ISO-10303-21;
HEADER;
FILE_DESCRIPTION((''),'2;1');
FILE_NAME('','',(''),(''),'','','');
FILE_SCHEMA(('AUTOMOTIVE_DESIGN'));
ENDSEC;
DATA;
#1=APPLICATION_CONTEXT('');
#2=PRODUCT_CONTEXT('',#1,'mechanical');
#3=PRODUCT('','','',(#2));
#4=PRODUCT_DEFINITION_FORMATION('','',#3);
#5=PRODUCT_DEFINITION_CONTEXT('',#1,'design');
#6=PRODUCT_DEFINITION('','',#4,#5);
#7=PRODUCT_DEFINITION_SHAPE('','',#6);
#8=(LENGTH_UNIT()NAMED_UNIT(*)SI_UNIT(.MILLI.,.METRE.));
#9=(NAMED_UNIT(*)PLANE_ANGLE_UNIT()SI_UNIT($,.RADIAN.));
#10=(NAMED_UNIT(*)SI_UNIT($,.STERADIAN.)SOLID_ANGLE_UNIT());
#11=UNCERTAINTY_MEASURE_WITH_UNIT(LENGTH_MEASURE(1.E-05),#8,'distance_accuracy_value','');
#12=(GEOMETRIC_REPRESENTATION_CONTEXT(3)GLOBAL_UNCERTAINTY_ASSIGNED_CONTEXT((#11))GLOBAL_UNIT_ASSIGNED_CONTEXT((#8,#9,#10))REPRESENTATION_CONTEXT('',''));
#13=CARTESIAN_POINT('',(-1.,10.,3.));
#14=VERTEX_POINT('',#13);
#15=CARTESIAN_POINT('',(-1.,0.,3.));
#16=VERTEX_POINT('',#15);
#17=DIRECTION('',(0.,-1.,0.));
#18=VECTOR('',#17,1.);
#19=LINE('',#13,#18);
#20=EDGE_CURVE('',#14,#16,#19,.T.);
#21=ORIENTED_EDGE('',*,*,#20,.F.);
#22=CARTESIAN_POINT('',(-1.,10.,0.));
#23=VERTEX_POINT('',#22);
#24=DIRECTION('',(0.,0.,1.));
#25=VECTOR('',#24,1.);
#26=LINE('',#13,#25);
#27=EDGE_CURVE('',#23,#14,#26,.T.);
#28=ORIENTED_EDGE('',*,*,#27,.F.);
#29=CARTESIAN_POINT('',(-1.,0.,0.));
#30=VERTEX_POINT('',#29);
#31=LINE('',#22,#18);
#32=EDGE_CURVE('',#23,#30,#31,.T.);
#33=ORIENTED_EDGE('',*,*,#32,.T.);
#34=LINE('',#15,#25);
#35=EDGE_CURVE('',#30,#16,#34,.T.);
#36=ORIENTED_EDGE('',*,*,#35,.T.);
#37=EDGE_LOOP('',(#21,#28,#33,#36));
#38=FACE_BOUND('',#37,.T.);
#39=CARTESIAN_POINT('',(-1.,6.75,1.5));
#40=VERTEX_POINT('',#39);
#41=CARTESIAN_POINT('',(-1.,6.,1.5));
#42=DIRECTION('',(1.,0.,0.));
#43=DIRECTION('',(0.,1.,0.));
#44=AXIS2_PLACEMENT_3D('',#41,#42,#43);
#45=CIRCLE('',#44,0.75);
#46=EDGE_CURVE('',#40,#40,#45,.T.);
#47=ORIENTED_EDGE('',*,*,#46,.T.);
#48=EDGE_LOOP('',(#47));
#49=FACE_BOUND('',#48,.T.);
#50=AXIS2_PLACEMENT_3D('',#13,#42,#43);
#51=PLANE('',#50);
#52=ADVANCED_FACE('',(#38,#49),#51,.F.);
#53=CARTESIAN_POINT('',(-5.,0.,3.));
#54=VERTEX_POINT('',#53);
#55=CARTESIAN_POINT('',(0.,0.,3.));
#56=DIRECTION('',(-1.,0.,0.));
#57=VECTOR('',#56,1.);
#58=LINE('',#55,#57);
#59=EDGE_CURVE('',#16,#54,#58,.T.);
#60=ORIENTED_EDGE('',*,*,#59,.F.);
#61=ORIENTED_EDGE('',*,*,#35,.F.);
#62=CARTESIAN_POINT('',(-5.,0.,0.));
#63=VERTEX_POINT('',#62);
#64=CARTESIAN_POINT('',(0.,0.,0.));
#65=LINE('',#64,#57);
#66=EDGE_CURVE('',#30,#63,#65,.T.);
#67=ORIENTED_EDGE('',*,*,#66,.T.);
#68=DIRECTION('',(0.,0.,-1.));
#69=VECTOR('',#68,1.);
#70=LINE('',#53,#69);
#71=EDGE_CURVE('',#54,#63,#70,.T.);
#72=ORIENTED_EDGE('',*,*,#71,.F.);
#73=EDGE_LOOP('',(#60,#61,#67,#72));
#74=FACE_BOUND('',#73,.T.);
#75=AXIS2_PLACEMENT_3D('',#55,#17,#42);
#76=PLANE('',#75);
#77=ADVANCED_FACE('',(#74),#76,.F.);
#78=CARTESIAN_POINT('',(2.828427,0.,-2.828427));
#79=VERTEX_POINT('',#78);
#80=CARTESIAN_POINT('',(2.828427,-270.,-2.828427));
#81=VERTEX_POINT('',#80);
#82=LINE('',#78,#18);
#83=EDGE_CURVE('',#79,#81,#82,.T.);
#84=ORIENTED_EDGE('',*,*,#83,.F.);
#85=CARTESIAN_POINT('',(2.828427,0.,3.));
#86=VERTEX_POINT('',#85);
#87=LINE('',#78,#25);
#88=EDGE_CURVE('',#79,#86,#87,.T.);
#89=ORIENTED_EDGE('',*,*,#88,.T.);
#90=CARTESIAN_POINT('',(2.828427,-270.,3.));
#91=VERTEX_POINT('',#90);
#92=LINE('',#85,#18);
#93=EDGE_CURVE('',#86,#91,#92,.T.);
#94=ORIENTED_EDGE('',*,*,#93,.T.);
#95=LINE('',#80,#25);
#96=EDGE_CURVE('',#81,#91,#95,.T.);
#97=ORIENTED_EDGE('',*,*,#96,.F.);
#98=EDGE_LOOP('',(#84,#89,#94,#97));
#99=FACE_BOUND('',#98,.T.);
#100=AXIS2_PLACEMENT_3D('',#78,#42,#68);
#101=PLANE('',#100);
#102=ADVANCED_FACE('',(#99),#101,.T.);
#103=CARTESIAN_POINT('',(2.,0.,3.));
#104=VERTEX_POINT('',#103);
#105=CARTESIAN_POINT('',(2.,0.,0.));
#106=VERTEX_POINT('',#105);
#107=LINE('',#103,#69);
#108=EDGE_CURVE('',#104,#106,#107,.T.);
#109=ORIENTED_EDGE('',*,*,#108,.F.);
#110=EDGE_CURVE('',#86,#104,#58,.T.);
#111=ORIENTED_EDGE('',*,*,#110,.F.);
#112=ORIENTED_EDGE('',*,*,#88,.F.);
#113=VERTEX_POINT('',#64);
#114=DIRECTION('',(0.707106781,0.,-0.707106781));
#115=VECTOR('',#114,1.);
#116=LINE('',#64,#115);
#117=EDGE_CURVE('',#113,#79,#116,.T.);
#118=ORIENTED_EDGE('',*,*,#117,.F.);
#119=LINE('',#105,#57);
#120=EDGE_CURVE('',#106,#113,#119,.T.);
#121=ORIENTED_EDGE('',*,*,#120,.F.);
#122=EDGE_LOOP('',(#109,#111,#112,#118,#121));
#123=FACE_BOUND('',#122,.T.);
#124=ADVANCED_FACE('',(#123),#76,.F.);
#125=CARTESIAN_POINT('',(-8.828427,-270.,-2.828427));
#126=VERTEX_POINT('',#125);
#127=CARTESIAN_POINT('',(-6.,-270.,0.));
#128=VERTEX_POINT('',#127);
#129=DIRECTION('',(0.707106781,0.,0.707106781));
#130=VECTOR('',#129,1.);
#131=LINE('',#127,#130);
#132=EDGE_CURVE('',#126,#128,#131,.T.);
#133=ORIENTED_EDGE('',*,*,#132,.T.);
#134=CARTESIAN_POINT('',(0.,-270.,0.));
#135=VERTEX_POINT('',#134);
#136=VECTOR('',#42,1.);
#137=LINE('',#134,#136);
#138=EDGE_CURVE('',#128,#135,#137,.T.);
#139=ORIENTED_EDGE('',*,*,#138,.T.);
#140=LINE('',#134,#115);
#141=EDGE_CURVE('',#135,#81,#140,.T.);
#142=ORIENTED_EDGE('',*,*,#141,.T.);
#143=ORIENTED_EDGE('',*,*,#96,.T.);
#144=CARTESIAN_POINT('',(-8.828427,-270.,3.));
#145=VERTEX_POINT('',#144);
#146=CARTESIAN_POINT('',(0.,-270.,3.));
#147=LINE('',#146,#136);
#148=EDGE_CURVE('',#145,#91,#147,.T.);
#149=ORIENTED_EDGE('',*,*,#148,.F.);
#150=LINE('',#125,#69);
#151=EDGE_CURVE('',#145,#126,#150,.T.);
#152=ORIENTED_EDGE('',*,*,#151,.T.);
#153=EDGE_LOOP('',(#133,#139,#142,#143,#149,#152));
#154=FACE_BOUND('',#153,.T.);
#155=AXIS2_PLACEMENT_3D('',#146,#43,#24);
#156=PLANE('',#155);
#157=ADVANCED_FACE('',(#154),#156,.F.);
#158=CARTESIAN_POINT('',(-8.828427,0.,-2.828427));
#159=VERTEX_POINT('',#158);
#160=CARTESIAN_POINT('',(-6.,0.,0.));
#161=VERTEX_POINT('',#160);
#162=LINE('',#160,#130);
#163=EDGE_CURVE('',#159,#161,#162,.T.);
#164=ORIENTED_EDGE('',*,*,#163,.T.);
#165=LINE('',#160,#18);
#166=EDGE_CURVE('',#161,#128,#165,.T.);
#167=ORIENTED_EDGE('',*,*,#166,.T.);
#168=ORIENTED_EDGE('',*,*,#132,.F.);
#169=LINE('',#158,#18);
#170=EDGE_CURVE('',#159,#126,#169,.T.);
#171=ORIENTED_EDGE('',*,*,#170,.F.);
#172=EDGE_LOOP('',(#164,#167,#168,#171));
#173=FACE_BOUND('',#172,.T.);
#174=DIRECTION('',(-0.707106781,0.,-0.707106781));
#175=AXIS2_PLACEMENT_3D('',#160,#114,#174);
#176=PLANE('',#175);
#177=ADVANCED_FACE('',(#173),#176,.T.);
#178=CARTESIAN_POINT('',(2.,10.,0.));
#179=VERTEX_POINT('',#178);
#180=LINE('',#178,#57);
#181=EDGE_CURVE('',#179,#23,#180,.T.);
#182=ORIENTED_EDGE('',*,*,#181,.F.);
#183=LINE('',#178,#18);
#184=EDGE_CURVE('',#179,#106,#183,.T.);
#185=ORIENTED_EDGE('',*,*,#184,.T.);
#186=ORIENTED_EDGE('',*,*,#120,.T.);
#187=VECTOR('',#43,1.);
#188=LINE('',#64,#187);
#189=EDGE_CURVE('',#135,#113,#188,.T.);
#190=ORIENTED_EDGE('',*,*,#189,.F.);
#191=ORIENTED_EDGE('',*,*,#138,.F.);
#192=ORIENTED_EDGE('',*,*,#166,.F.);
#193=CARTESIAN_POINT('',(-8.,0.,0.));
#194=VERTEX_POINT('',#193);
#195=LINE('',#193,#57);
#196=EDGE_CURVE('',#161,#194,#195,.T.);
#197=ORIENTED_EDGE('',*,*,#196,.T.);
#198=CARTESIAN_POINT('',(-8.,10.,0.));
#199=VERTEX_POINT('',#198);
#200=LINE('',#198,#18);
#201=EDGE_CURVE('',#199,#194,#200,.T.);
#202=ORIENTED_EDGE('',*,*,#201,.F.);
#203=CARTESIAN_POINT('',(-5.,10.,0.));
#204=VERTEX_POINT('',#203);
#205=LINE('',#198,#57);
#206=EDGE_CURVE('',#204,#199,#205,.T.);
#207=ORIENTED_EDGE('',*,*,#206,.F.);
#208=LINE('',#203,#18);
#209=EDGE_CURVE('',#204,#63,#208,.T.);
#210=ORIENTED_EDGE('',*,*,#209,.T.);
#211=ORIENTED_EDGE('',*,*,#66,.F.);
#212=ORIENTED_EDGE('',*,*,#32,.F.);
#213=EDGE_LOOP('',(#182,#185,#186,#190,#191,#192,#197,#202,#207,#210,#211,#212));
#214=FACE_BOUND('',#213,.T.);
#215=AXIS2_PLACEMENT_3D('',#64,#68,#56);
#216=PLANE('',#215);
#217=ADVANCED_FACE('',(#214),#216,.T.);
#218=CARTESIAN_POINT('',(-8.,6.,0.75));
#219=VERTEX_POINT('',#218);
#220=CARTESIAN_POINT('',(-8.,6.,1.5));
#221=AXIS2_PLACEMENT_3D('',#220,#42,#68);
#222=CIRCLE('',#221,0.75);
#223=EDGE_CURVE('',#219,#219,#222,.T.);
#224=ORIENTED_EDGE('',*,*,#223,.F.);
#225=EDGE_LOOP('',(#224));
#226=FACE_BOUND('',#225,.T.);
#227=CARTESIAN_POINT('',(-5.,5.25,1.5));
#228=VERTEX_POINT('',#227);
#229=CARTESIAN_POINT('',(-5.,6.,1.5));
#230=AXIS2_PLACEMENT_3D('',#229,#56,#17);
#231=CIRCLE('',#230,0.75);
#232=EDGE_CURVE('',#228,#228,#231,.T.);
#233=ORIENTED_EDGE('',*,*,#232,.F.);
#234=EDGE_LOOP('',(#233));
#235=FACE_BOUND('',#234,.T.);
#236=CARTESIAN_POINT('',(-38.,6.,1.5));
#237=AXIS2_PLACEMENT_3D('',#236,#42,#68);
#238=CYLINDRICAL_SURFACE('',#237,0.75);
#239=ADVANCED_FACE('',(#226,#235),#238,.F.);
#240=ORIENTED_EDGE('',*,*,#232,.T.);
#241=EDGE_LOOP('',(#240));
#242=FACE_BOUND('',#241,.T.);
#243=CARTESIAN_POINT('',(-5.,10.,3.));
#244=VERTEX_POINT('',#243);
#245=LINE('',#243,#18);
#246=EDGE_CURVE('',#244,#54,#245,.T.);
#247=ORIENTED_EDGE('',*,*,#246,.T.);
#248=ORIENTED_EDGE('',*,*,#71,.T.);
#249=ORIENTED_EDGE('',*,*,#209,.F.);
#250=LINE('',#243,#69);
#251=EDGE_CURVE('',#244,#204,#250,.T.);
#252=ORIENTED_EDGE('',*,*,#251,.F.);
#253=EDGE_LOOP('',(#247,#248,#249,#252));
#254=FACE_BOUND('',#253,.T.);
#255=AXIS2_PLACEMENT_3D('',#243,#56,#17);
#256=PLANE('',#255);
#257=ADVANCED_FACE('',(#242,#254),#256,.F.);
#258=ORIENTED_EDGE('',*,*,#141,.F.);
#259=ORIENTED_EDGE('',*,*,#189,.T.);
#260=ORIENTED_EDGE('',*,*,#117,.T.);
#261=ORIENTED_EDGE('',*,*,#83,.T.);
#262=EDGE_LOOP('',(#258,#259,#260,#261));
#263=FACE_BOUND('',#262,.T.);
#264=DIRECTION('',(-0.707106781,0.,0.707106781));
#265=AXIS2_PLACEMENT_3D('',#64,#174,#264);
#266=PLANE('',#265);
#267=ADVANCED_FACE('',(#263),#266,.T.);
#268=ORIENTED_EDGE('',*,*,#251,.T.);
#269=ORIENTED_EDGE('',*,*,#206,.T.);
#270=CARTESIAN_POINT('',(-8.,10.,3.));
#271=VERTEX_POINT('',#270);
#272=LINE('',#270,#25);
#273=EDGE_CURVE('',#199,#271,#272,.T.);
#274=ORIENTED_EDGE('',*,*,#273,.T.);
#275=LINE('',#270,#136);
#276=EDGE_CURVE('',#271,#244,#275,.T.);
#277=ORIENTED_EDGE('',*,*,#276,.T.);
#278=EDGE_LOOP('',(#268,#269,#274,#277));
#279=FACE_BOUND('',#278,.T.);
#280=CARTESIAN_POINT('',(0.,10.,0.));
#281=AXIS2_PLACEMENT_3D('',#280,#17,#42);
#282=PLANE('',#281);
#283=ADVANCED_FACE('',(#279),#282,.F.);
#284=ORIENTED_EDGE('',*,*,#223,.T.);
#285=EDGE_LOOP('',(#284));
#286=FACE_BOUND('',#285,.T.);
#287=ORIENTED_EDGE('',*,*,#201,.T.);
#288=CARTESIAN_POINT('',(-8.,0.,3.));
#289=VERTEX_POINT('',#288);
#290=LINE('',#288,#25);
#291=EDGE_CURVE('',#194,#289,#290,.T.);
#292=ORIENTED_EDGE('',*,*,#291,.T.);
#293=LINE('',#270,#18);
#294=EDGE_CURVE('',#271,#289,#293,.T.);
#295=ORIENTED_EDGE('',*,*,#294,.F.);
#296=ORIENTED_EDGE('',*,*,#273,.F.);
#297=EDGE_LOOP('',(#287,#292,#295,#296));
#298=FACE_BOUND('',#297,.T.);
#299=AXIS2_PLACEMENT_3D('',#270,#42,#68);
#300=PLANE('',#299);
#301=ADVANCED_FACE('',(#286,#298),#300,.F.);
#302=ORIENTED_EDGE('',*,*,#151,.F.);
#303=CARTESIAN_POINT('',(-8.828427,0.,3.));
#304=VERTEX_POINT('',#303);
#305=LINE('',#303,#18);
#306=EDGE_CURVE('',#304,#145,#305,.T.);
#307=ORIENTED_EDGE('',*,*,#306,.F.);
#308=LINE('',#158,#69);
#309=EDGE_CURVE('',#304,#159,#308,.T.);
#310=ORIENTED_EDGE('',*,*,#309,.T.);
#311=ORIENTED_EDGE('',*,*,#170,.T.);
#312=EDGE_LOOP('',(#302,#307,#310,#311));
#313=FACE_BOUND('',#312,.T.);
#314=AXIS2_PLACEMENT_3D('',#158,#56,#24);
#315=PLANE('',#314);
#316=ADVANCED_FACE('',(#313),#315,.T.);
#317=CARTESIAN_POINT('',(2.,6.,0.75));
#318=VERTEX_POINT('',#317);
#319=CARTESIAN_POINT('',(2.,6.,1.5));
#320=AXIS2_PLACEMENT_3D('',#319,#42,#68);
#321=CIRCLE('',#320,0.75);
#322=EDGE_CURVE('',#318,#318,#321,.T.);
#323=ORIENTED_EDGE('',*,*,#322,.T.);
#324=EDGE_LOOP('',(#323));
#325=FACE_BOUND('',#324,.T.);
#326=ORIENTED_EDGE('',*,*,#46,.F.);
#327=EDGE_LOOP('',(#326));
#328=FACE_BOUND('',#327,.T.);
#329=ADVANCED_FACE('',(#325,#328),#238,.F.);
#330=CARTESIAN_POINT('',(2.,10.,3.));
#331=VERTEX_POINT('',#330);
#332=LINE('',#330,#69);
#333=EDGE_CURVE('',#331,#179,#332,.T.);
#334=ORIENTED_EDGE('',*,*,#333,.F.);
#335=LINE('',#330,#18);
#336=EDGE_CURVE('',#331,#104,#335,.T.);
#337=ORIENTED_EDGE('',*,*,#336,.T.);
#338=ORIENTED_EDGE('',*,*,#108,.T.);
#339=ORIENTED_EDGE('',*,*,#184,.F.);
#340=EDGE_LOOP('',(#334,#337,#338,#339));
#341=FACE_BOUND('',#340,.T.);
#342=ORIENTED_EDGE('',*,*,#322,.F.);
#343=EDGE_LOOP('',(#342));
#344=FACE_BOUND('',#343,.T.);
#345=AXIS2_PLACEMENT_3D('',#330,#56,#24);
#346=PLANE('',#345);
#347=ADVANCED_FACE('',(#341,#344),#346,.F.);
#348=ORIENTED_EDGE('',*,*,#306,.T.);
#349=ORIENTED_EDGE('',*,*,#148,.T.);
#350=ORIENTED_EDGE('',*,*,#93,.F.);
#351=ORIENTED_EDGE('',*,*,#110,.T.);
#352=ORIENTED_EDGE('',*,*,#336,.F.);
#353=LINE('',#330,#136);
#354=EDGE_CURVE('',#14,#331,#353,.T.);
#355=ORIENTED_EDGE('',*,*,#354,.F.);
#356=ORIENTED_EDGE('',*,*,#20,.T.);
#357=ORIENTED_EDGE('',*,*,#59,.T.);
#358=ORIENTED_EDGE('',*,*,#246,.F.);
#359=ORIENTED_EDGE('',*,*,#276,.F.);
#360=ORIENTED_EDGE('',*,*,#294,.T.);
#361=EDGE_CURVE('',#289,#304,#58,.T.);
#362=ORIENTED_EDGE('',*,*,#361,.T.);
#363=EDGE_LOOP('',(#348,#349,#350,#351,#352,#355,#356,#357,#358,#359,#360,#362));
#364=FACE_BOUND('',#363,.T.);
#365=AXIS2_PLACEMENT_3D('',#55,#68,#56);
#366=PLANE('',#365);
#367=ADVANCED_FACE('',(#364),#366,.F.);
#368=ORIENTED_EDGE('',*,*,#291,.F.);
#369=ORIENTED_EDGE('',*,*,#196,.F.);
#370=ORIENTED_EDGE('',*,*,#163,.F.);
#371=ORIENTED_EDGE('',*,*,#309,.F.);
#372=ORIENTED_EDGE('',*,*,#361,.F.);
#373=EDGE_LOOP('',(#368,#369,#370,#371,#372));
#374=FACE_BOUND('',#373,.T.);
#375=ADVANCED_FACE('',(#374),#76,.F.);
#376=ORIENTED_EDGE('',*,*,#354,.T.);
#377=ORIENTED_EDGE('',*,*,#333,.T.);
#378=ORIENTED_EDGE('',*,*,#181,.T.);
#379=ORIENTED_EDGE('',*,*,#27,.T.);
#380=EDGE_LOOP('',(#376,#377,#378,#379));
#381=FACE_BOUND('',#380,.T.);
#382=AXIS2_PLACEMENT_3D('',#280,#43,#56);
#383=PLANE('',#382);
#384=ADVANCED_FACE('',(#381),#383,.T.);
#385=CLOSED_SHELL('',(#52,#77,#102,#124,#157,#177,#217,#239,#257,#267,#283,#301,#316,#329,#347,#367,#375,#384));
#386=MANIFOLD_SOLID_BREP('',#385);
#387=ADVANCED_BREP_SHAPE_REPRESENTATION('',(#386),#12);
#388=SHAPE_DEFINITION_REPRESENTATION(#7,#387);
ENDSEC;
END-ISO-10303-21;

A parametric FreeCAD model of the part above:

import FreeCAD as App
import Part
import Sketcher
from FreeCAD import Vector


def add_polygon(sketch, points):
    """Adds a closed chain of lines whose ends are joined by coincident constraints."""
    first, n = sketch.GeometryCount, len(points)
    for a, b in zip(points, points[1:] + points[:1]):
        sketch.addGeometry(Part.LineSegment(App.Vector(*a, 0), App.Vector(*b, 0)), False)
    for i in range(n):
        sketch.addConstraint(Sketcher.Constraint("Coincident", first + i, 2, first + (i + 1) % n, 1))

doc = App.newDocument("Part")
body = doc.addObject("PartDesign::Body", "Body")

# Sketch on XY plane
sketch1 = body.newObject("Sketcher::SketchObject", "Sketch")
sketch1.AttachmentSupport = (doc.getObject("XY_Plane"), [""])
sketch1.MapMode = "FlatFace"
add_polygon(sketch1, [(-6, 0), (-6, -270), (0, -270), (0, 0)])  # lines 0-3
sketch1.addConstraint(Sketcher.Constraint("Vertical", 0))
sketch1.addConstraint(Sketcher.Constraint("Horizontal", 1))
sketch1.addConstraint(Sketcher.Constraint("Vertical", 2))
sketch1.addConstraint(Sketcher.Constraint("Horizontal", 3))
sketch1.addConstraint(Sketcher.Constraint("Coincident", 2, 2, -1, 1))
sketch1.addConstraint(Sketcher.Constraint("DistanceX", 1, 1, 1, 2, 6.0))
sketch1.addConstraint(Sketcher.Constraint("DistanceY", 0, 2, 0, 1, 270.0))
pad1 = body.newObject("PartDesign::Pad", "Pad")
pad1.Profile = sketch1
pad1.Length = 3

# Sketch on XZ plane
sketch2 = body.newObject("Sketcher::SketchObject", "Sketch001")
sketch2.AttachmentSupport = (doc.getObject("XZ_Plane"), [""])
sketch2.MapMode = "FlatFace"
sketch2.AttachmentOffset = App.Placement(Vector(0, 0, 270), App.Rotation())
add_polygon(sketch2, [(0, 0), (2.8, -2.8), (2.8, 3), (0, 3)])  # lines 0-3
add_polygon(sketch2, [(-6, 3), (-8.8, 3), (-8.8, -2.8), (-6, 0)])  # lines 4-7
sketch2.addConstraint(Sketcher.Constraint("Vertical", 1))
sketch2.addConstraint(Sketcher.Constraint("Horizontal", 2))
sketch2.addConstraint(Sketcher.Constraint("Vertical", 3))
sketch2.addConstraint(Sketcher.Constraint("Horizontal", 4))
sketch2.addConstraint(Sketcher.Constraint("Vertical", 5))
sketch2.addConstraint(Sketcher.Constraint("Vertical", 7))
sketch2.addConstraint(Sketcher.Constraint("Coincident", 3, 2, -1, 1))
sketch2.addConstraint(Sketcher.Constraint("PointOnObject", 6, 2, -1))
sketch2.addConstraint(Sketcher.Constraint("Perpendicular", 0, 6))
sketch2.addConstraint(Sketcher.Constraint("Horizontal", 2, 2, 4, 2))
sketch2.addConstraint(Sketcher.Constraint("Horizontal", 0, 2, 5, 2))
sketch2.addConstraint(Sketcher.Constraint("Equal", 2, 4))
sketch2.addConstraint(Sketcher.Constraint("DistanceY", 3, 2, 3, 1, 3.0))
sketch2.addConstraint(Sketcher.Constraint("Distance", 0, 4.0))
sketch2.addConstraint(Sketcher.Constraint("DistanceX", 6, 2, -1, 1, 6.0))
pad2 = body.newObject("PartDesign::Pad", "Pad001")
pad2.Profile = sketch2
pad2.Length = 270
pad2.Reversed = True

# Sketch on XZ plane
sketch3 = body.newObject("Sketcher::SketchObject", "Sketch002")
sketch3.AttachmentSupport = (doc.getObject("XZ_Plane"), [""])
sketch3.MapMode = "FlatFace"
add_polygon(sketch3, [(-8, 0), (-8, 3), (-5, 3), (-5, 0)])  # lines 0-3
add_polygon(sketch3, [(-1, 0), (-1, 3), (2, 3), (2, 0)])  # lines 4-7
sketch3.addConstraint(Sketcher.Constraint("Vertical", 0))
sketch3.addConstraint(Sketcher.Constraint("Horizontal", 1))
sketch3.addConstraint(Sketcher.Constraint("Vertical", 2))
sketch3.addConstraint(Sketcher.Constraint("Horizontal", 3))
sketch3.addConstraint(Sketcher.Constraint("Vertical", 4))
sketch3.addConstraint(Sketcher.Constraint("Horizontal", 5))
sketch3.addConstraint(Sketcher.Constraint("Vertical", 6))
sketch3.addConstraint(Sketcher.Constraint("Horizontal", 7))
sketch3.addConstraint(Sketcher.Constraint("PointOnObject", 2, 2, -1))
sketch3.addConstraint(Sketcher.Constraint("PointOnObject", 6, 2, -1))
sketch3.addConstraint(Sketcher.Constraint("Horizontal", 1, 2, 4, 2))
sketch3.addConstraint(Sketcher.Constraint("Equal", 3, 5))
sketch3.addConstraint(Sketcher.Constraint("Equal", 7, 0))
sketch3.addConstraint(Sketcher.Constraint("DistanceX", 1, 1, 1, 2, 3.0))
sketch3.addConstraint(Sketcher.Constraint("DistanceX", 0, 2, -1, 1, 8.0))
sketch3.addConstraint(Sketcher.Constraint("DistanceX", 4, 2, -1, 1, 1.0))
pad3 = body.newObject("PartDesign::Pad", "Pad002")
pad3.Profile = sketch3
pad3.Length = 10
pad3.Reversed = True

# Sketch on YZ plane
sketch4 = body.newObject("Sketcher::SketchObject", "Sketch003")
sketch4.AttachmentSupport = (doc.getObject("YZ_Plane"), [""])
sketch4.MapMode = "FlatFace"
sketch4.AttachmentOffset = App.Placement(Vector(0, 0, 2), App.Rotation())
sketch4.addGeometry(Part.Circle(Vector(6, 1.5, 0), Vector(0, 0, 1), 0.8), False)
sketch4.addConstraint(Sketcher.Constraint("Diameter", 0, 1.5))
sketch4.addConstraint(Sketcher.Constraint("DistanceX", -1, 1, 0, 3, 6.0))
sketch4.addConstraint(Sketcher.Constraint("DistanceY", -1, 1, 0, 3, 1.5))
pocket1 = body.newObject("PartDesign::Pocket", "Pocket")
pocket1.Profile = sketch4
pocket1.Length = 40

doc.recompute()
